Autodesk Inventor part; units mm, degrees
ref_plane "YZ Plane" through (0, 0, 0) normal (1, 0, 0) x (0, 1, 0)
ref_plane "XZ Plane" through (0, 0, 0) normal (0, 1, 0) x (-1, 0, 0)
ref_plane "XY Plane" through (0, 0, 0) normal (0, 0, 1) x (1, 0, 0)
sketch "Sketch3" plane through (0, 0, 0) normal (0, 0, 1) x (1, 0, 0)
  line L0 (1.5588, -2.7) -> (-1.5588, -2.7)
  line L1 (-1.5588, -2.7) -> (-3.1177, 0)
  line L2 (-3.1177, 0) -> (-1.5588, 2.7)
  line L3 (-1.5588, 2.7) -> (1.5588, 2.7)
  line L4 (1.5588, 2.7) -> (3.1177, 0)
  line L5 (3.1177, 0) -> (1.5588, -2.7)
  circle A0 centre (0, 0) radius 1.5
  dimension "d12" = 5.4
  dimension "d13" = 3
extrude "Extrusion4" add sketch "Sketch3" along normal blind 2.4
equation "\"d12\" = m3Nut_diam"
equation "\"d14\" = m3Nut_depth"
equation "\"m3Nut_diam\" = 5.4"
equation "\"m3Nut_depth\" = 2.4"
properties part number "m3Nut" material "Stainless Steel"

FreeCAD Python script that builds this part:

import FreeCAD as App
import Part
import Sketcher
from FreeCAD import Vector
Q = App.Units.Quantity

doc = App.newDocument("Part")
body = doc.addObject("PartDesign::Body", "Body")

sketch1 = body.newObject("Sketcher::SketchObject", "Sketch")
sketch1.AttachmentSupport = (doc.getObject("XY_Plane"), [""])
sketch1.MapMode = "FlatFace"
sketch1.addGeometry([
    Part.LineSegment(Vector(-1.6, -2.7, 0), Vector(1.6, -2.7, 0)),
    Part.LineSegment(Vector(1.6, -2.7, 0), Vector(3.1, 0, 0)),
    Part.LineSegment(Vector(3.1, 0, 0), Vector(1.6, 2.7, 0)),
    Part.LineSegment(Vector(1.6, 2.7, 0), Vector(-1.6, 2.7, 0)),
    Part.LineSegment(Vector(-1.6, 2.7, 0), Vector(-3.1, 0, 0)),
    Part.LineSegment(Vector(-3.1, 0, 0), Vector(-1.6, -2.7, 0)),
    Part.Circle(Vector(0, 0, 0), Vector(0, 0, 1), 1.5),
], False)
sketch1.addConstraint([
    Sketcher.Constraint("Coincident", 0, 2, 1, 1),
    Sketcher.Constraint("Coincident", 1, 2, 2, 1),
    Sketcher.Constraint("Coincident", 2, 2, 3, 1),
    Sketcher.Constraint("Coincident", 3, 2, 4, 1),
    Sketcher.Constraint("Coincident", 4, 2, 5, 1),
    Sketcher.Constraint("Coincident", 5, 2, 0, 1),
    Sketcher.Constraint("Horizontal", 0),
    Sketcher.Constraint("Horizontal", 3),
    Sketcher.Constraint("Coincident", 6, 3, -1, 1),
    Sketcher.Constraint("Symmetric", 0, 2, 3, 2, -1, 1),
    Sketcher.Constraint("Symmetric", 1, 2, 4, 2, -1, 1),
    Sketcher.Constraint("PointOnObject", 1, 2, -1),
    Sketcher.Constraint("Parallel", 2, 5),
    Sketcher.Constraint("Vertical", 0, 2, 2, 2),
    Sketcher.Constraint("Diameter", 6, 3.0),
    Sketcher.Constraint("DistanceY", 0, 2, 2, 2, 5.4),
    Sketcher.Constraint("Angle", 1, Q("59.9991 deg")),
    Sketcher.Constraint("DistanceX", 0, 1, 0, 2, 3.1176),
])
pad1 = body.newObject("PartDesign::Pad", "Pad")
pad1.Profile = sketch1
pad1.Length = 2.4

doc.recompute()
